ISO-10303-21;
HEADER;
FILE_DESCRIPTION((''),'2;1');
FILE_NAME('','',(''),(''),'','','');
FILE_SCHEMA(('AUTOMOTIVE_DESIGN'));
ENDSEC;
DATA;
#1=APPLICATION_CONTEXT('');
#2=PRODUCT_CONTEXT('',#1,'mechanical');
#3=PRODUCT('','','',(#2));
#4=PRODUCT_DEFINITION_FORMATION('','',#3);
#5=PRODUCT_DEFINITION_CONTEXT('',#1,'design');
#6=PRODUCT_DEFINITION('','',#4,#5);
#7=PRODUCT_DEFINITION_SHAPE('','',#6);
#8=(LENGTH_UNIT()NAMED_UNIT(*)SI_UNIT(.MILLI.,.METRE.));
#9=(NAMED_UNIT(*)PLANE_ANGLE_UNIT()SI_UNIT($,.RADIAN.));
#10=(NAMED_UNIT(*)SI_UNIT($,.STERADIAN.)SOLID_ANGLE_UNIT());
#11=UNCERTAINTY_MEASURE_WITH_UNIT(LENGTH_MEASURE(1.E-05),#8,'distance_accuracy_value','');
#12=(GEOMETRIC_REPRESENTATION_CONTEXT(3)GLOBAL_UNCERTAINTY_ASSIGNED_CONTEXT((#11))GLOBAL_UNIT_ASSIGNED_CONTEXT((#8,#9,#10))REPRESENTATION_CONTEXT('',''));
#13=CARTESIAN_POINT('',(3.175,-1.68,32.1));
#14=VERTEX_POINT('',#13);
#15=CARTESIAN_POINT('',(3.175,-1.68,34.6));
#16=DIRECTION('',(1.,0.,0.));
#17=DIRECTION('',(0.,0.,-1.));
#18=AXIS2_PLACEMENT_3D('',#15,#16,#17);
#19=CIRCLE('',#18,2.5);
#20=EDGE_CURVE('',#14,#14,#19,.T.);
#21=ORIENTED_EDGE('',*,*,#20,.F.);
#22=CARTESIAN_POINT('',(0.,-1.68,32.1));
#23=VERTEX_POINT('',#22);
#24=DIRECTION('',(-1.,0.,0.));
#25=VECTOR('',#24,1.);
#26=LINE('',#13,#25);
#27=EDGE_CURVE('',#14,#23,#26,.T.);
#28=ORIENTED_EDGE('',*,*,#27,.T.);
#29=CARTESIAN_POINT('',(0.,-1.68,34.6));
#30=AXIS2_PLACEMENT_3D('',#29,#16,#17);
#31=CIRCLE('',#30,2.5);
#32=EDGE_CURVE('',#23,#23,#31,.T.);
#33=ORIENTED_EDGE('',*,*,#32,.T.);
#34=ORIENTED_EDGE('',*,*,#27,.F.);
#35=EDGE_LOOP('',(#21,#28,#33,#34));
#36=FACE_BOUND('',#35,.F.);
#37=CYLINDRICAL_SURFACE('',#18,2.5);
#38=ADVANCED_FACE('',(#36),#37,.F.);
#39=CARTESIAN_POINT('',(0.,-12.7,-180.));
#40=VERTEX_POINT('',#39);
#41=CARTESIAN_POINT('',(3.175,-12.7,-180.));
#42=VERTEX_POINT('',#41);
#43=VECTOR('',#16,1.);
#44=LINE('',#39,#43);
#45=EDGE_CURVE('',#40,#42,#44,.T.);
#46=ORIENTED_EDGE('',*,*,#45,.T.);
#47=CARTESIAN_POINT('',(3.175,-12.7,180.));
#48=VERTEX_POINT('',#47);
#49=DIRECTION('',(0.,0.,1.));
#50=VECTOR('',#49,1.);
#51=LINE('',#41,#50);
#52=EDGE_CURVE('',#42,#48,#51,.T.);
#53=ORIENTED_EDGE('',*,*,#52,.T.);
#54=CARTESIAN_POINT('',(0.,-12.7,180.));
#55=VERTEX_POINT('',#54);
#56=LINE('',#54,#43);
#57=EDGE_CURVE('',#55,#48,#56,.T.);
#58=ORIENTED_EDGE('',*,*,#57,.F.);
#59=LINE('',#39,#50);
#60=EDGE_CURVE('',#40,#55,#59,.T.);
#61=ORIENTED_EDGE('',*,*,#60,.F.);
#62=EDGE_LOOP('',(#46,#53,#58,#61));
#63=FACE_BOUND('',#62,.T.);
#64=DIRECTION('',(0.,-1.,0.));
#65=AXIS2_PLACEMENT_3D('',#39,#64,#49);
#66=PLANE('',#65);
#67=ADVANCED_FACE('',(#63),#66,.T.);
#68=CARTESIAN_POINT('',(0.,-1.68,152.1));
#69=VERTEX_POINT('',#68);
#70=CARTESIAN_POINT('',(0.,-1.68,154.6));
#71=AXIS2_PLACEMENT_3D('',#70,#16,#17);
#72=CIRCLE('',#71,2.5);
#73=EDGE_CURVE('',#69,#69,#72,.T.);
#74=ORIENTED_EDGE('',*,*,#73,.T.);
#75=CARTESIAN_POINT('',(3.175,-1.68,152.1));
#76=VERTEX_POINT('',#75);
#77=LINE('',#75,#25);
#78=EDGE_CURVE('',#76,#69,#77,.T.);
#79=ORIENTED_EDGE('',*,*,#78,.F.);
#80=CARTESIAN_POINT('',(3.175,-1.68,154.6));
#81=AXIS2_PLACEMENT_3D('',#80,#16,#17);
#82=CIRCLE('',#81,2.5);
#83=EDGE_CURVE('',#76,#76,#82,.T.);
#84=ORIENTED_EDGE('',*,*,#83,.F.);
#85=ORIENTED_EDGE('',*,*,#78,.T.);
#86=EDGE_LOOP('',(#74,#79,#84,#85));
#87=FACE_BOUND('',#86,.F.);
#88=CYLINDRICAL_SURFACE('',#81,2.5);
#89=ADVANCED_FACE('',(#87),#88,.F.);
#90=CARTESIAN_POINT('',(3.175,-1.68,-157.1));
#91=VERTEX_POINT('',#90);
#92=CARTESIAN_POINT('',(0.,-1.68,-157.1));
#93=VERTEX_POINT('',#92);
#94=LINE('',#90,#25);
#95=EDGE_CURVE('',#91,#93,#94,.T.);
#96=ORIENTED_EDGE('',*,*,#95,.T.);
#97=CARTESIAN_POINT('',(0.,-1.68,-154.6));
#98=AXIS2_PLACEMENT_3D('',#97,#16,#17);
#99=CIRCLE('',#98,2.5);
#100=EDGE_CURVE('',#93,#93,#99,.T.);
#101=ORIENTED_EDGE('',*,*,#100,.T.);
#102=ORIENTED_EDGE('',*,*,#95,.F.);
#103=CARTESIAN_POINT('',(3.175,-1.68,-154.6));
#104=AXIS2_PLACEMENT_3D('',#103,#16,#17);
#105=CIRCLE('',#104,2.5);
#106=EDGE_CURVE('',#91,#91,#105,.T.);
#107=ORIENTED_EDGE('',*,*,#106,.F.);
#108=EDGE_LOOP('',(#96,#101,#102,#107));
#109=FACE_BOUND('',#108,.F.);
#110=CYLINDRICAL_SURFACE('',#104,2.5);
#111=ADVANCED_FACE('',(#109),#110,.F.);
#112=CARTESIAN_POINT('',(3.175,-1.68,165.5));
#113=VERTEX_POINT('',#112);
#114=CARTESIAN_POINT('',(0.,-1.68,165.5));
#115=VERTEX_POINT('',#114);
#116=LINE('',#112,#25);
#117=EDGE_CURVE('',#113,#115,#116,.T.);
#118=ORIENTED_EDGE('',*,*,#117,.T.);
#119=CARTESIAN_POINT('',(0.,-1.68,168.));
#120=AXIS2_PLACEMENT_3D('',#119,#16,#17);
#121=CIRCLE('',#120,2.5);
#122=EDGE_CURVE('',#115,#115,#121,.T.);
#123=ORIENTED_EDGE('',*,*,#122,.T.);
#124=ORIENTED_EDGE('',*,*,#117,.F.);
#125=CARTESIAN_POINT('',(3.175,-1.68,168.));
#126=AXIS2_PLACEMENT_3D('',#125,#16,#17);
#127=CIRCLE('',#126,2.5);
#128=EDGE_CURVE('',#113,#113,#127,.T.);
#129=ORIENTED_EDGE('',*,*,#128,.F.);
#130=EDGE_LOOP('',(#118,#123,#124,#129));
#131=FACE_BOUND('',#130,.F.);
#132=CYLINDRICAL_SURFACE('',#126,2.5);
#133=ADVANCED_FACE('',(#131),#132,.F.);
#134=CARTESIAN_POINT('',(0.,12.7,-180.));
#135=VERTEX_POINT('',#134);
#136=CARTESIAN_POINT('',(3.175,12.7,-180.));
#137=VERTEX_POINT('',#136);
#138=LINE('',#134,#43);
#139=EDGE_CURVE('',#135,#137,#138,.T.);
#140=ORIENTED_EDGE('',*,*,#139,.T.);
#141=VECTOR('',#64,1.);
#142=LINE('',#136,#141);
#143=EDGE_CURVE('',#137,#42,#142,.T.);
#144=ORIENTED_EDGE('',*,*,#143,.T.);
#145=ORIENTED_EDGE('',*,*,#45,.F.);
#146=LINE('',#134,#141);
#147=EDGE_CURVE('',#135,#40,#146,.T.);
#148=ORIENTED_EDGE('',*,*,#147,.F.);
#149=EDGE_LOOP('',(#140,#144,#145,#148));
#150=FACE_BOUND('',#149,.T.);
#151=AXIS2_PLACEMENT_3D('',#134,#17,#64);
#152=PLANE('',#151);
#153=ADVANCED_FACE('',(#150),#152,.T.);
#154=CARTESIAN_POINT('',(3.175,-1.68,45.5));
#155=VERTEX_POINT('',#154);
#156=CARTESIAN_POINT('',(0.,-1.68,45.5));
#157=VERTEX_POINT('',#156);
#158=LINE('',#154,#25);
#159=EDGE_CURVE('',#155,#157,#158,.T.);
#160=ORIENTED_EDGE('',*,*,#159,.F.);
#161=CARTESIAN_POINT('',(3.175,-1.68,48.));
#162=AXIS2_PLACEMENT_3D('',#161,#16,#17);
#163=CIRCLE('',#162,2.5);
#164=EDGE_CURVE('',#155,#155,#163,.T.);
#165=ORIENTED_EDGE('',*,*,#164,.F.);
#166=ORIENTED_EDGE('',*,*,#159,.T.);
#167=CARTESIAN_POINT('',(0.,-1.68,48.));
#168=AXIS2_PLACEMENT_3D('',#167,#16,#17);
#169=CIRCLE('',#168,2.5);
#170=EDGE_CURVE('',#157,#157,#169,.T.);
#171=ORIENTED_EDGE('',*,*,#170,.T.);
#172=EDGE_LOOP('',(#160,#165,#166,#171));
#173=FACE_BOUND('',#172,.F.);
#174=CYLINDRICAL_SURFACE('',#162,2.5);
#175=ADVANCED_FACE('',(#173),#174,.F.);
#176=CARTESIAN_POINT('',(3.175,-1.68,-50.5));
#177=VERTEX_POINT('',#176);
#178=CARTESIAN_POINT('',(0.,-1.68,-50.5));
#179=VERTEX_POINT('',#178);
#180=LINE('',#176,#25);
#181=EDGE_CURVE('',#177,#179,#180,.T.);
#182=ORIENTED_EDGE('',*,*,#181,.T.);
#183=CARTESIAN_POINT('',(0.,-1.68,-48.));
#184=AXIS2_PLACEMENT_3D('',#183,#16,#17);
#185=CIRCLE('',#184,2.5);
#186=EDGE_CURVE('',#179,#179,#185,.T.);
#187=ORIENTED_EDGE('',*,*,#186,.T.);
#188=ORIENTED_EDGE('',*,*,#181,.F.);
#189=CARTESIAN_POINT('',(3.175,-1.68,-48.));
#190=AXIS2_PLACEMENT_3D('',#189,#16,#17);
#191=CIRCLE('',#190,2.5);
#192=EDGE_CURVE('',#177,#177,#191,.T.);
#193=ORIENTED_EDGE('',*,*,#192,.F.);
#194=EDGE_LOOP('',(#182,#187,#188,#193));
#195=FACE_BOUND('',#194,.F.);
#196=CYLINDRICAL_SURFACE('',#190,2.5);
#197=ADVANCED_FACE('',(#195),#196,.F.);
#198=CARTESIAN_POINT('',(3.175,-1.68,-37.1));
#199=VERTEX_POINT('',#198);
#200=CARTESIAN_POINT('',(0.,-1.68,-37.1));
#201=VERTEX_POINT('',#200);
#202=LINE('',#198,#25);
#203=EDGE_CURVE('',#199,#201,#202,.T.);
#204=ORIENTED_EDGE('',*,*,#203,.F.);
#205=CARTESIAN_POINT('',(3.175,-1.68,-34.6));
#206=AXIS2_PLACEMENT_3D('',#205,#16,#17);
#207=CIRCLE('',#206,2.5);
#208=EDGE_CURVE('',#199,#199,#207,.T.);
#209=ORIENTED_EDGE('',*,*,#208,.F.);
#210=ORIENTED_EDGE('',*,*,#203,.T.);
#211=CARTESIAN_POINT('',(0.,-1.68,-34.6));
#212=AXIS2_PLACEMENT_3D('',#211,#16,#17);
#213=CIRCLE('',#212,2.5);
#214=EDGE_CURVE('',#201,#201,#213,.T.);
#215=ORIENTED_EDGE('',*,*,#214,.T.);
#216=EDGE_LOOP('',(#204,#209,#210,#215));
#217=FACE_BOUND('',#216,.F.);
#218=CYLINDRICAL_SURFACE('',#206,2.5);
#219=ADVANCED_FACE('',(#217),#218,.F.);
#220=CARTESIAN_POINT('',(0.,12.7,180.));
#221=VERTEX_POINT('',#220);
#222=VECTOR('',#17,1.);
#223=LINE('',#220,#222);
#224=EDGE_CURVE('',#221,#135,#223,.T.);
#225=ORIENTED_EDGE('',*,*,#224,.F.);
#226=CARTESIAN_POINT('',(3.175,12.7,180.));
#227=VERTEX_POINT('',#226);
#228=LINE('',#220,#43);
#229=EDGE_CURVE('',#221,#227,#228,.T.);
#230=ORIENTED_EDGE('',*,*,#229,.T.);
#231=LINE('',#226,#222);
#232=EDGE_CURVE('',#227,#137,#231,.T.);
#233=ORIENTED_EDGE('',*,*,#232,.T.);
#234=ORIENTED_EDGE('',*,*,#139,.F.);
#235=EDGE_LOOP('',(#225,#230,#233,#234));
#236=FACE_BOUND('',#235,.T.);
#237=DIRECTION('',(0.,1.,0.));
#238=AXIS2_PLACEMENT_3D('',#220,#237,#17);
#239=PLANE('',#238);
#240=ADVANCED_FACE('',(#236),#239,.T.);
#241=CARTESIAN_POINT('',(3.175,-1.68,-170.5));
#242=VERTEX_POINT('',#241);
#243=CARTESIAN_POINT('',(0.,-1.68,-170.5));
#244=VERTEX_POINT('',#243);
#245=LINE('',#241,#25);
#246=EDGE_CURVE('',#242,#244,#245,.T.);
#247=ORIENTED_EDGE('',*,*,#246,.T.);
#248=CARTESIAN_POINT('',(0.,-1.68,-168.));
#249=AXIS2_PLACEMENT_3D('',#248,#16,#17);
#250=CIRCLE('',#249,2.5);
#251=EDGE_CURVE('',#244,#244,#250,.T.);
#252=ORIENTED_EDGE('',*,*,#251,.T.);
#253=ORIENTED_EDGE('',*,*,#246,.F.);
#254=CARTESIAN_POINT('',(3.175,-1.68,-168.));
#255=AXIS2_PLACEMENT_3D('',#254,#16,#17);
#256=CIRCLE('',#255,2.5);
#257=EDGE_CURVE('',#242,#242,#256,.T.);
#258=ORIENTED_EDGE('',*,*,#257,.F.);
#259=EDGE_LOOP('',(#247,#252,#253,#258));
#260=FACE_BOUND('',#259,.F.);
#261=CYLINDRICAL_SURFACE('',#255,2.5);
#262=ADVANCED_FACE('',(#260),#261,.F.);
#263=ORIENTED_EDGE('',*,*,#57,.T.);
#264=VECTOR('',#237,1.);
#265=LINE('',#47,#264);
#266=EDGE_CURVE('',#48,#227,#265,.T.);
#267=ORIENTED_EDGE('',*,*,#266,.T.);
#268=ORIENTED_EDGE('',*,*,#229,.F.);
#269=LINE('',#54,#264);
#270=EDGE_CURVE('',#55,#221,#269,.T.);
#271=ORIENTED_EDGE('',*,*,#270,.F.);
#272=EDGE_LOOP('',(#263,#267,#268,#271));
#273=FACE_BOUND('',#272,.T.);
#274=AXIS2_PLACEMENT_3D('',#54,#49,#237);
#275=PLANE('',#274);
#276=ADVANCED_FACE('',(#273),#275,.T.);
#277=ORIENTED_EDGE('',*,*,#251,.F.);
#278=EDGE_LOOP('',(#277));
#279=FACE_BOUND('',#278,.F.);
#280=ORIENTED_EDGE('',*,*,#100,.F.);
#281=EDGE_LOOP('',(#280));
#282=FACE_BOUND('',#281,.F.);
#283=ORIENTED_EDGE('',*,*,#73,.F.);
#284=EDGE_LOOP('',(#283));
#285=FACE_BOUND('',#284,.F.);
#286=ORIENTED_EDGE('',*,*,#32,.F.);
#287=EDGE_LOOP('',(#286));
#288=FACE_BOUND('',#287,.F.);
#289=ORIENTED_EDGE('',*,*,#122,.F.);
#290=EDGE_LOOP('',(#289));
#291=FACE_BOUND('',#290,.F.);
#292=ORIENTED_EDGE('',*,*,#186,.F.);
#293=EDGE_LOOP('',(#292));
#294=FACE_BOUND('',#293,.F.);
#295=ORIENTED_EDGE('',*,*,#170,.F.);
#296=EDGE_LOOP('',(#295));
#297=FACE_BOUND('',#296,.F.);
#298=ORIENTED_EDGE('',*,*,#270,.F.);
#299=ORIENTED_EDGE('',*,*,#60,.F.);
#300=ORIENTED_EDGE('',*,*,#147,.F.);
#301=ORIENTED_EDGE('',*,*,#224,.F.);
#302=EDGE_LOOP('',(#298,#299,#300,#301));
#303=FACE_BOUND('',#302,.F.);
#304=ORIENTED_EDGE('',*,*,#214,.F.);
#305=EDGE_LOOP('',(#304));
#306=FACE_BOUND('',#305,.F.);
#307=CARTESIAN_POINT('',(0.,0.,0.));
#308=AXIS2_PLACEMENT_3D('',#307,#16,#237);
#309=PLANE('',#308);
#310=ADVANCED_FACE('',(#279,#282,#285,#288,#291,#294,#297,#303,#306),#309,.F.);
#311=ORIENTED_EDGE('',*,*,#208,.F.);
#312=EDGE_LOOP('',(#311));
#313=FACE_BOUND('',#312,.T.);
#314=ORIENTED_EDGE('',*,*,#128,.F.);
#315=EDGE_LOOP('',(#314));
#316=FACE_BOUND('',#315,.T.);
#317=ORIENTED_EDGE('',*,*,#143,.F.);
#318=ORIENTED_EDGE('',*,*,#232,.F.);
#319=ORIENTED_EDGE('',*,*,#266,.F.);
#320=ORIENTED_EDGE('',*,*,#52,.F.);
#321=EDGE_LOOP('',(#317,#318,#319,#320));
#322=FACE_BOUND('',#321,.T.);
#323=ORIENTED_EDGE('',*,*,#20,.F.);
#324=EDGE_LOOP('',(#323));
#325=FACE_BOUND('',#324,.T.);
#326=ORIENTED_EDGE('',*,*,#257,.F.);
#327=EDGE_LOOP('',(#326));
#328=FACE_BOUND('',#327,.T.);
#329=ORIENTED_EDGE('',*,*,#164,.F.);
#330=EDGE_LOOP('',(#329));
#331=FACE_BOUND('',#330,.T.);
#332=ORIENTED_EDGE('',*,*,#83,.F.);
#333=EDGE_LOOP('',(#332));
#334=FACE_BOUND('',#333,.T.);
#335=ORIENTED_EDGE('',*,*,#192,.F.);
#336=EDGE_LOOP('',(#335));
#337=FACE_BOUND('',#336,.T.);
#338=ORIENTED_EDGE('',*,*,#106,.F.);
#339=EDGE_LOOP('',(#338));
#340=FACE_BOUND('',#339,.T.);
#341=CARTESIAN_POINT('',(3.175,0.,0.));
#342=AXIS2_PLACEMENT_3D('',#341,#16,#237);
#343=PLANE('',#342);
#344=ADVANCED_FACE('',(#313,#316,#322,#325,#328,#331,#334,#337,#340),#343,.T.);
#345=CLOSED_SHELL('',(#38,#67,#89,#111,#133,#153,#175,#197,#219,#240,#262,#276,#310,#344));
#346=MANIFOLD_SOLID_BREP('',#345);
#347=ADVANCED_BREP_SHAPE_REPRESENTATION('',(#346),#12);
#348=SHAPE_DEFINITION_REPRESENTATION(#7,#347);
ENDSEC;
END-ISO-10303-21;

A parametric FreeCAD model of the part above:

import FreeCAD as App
import Part
import Sketcher
from FreeCAD import Vector


def add_polygon(sketch, points):
    """Adds a closed chain of lines whose ends are joined by coincident constraints."""
    first, n = sketch.GeometryCount, len(points)
    for a, b in zip(points, points[1:] + points[:1]):
        sketch.addGeometry(Part.LineSegment(App.Vector(*a, 0), App.Vector(*b, 0)), False)
    for i in range(n):
        sketch.addConstraint(Sketcher.Constraint("Coincident", first + i, 2, first + (i + 1) % n, 1))

doc = App.newDocument("Part")
body = doc.addObject("PartDesign::Body", "Body")

# Sketch on YZ plane
sketch1 = body.newObject("Sketcher::SketchObject", "Sketch")
sketch1.AttachmentSupport = (doc.getObject("YZ_Plane"), [""])
sketch1.MapMode = "FlatFace"
add_polygon(sketch1, [(13, 180), (-13, 180), (-13, -180), (13, -180)])  # lines 0-3
sketch1.addConstraint([
    Sketcher.Constraint("Horizontal", 0),
    Sketcher.Constraint("Vertical", 1),
    Sketcher.Constraint("Horizontal", 2),
    Sketcher.Constraint("Vertical", 3),
    Sketcher.Constraint("Symmetric", 0, 2, 2, 2, -1, 1),
    Sketcher.Constraint("DistanceY", 1, 2, 1, 1, 360.0),
    Sketcher.Constraint("DistanceX", 0, 2, 0, 1, 25.4),
])
pad1 = body.newObject("PartDesign::Pad", "Pad")
pad1.Profile = sketch1
pad1.Length = 3.175

# Sketch on YZ plane
sketch2 = body.newObject("Sketcher::SketchObject", "Sketch001")
sketch2.AttachmentSupport = (doc.getObject("YZ_Plane"), [""])
sketch2.MapMode = "FlatFace"
sketch2.AttachmentOffset = App.Placement(Vector(0, 0, 3.175), App.Rotation())
sketch2.addGeometry([
    Part.Circle(Vector(-1.7, 168, 0), Vector(0, 0, 1), 2.5),
    Part.Circle(Vector(-1.7, -168, 0), Vector(0, 0, 1), 2.5),
    Part.Circle(Vector(-1.7, 154.6, 0), Vector(0, 0, 1), 2.5),
    Part.Circle(Vector(-1.7, -154.6, 0), Vector(0, 0, 1), 2.5),
], False)
sketch2.addConstraint([
    Sketcher.Constraint("Equal", 0, 1),
    Sketcher.Constraint("Equal", 1, 2),
    Sketcher.Constraint("Equal", 2, 3),
    Sketcher.Constraint("Symmetric", 0, 3, 1, 3, -1),
    Sketcher.Constraint("Symmetric", 2, 3, 3, 3, -1),
    Sketcher.Constraint("Vertical", 1, 3, 2, 3),
    Sketcher.Constraint("Diameter", 0, 5.0),
    Sketcher.Constraint("DistanceY", 2, 3, 0, 3, 13.4),
    Sketcher.Constraint("DistanceY", -1, 1, 0, 3, 168.0),
    Sketcher.Constraint("DistanceX", 0, 3, -1, 1, 1.68),
])
pocket1 = body.newObject("PartDesign::Pocket", "Pocket")
pocket1.Profile = sketch2
pocket1.Type = "ThroughAll"

# Sketch on YZ plane
sketch3 = body.newObject("Sketcher::SketchObject", "Sketch002")
sketch3.AttachmentSupport = (doc.getObject("YZ_Plane"), [""])
sketch3.MapMode = "FlatFace"
sketch3.AttachmentOffset = App.Placement(Vector(0, 0, 3.175), App.Rotation())
sketch3.addGeometry([
    Part.Circle(Vector(-1.7, 48, 0), Vector(0, 0, 1), 2.5),
    Part.Circle(Vector(-1.7, 34.6, 0), Vector(0, 0, 1), 2.5),
    Part.Circle(Vector(-1.7, -48, 0), Vector(0, 0, 1), 2.5),
    Part.Circle(Vector(-1.7, -34.6, 0), Vector(0, 0, 1), 2.5),
], False)
sketch3.addConstraint([
    Sketcher.Constraint("Equal", 0, 1),
    Sketcher.Constraint("Equal", 1, 2),
    Sketcher.Constraint("Equal", 2, 3),
    Sketcher.Constraint("Symmetric", 0, 3, 2, 3, -1),
    Sketcher.Constraint("Symmetric", 1, 3, 3, 3, -1),
    Sketcher.Constraint("Vertical", 0, 3, 1, 3),
    Sketcher.Constraint("Diameter", 0, 5.0),
    Sketcher.Constraint("DistanceY", -1, 1, 0, 3, 48.0),
    Sketcher.Constraint("DistanceY", -1, 1, 1, 3, 34.6),
    Sketcher.Constraint("DistanceX", 0, 3, -1, 1, 1.68),
])
pocket2 = body.newObject("PartDesign::Pocket", "Pocket001")
pocket2.Profile = sketch3
pocket2.Type = "ThroughAll"

doc.recompute()
